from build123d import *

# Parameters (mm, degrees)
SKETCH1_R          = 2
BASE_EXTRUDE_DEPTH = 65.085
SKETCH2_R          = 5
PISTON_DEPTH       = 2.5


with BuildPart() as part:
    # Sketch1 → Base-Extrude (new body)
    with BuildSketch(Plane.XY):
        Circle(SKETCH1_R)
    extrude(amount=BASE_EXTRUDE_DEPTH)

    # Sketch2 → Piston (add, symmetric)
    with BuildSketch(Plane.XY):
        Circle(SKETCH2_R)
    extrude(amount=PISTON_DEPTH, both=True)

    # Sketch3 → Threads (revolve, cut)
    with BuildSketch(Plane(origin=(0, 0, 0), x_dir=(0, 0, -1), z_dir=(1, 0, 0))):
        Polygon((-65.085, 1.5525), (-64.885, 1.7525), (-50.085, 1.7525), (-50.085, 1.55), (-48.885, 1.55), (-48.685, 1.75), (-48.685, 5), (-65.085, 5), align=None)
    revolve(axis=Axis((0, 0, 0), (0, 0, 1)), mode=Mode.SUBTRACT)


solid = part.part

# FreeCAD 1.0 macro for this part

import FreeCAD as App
import Part
import Sketcher
Q = App.Units.Quantity

doc = App.newDocument("Part")
body = doc.addObject("PartDesign::Body", "Body")

sketch1 = body.newObject("Sketcher::SketchObject", "Sketch")
sketch1.AttachmentSupport = (doc.getObject("XY_Plane"), [""])
sketch1.MapMode = "FlatFace"
sketch1.addGeometry(Part.Circle(App.Vector(0, 0, 0), App.Vector(0, 0, 1), 2), False)
sketch1.addConstraint(Sketcher.Constraint("Coincident", 0, 3, -1, 1))
sketch1.addConstraint(Sketcher.Constraint("Diameter", 0, 4.0))
pad1 = body.newObject("PartDesign::Pad", "Pad")
pad1.Profile = sketch1
pad1.Length = 65.085

sketch2 = body.newObject("Sketcher::SketchObject", "Sketch001")
sketch2.AttachmentSupport = (doc.getObject("XY_Plane"), [""])
sketch2.MapMode = "FlatFace"
sketch2.addGeometry(Part.Circle(App.Vector(0, 0, 0), App.Vector(0, 0, 1), 5), False)
sketch2.addConstraint(Sketcher.Constraint("Coincident", 0, 3, -1, 1))
sketch2.addConstraint(Sketcher.Constraint("Diameter", 0, 10.0))
pad2 = body.newObject("PartDesign::Pad", "Pad001")
pad2.Profile = sketch2
pad2.Length = 5
pad2.Midplane = True

sketch3 = body.newObject("Sketcher::SketchObject", "Sketch002")
sketch3.AttachmentSupport = (doc.getObject("YZ_Plane"), [""])
sketch3.MapMode = "FlatFace"
sketch3.addGeometry(Part.LineSegment(App.Vector(1.55, 65.08, 0), App.Vector(1.75, 64.89, 0)), False)
sketch3.addGeometry(Part.LineSegment(App.Vector(1.75, 64.89, 0), App.Vector(1.75, 50.09, 0)), False)
sketch3.addGeometry(Part.LineSegment(App.Vector(1.75, 50.09, 0), App.Vector(1.55, 50.09, 0)), False)
sketch3.addGeometry(Part.LineSegment(App.Vector(1.55, 50.09, 0), App.Vector(1.55, 48.88, 0)), False)
sketch3.addGeometry(Part.LineSegment(App.Vector(1.55, 48.88, 0), App.Vector(1.75, 48.69, 0)), False)
sketch3.addGeometry(Part.LineSegment(App.Vector(1.75, 48.69, 0), App.Vector(5, 48.69, 0)), False)
sketch3.addGeometry(Part.LineSegment(App.Vector(5, 48.69, 0), App.Vector(5, 65.08, 0)), False)
sketch3.addGeometry(Part.LineSegment(App.Vector(5, 65.08, 0), App.Vector(1.55, 65.08, 0)), False)
sketch3.addConstraint(Sketcher.Constraint("Coincident", 0, 2, 1, 1))
sketch3.addConstraint(Sketcher.Constraint("Coincident", 1, 2, 2, 1))
sketch3.addConstraint(Sketcher.Constraint("Coincident", 2, 2, 3, 1))
sketch3.addConstraint(Sketcher.Constraint("Coincident", 3, 2, 4, 1))
sketch3.addConstraint(Sketcher.Constraint("Coincident", 4, 2, 5, 1))
sketch3.addConstraint(Sketcher.Constraint("Coincident", 5, 2, 6, 1))
sketch3.addConstraint(Sketcher.Constraint("Coincident", 6, 2, 7, 1))
sketch3.addConstraint(Sketcher.Constraint("Coincident", 7, 2, 0, 1))
sketch3.addConstraint(Sketcher.Constraint("Vertical", 1))
sketch3.addConstraint(Sketcher.Constraint("Horizontal", 2))
sketch3.addConstraint(Sketcher.Constraint("Vertical", 3))
sketch3.addConstraint(Sketcher.Constraint("Horizontal", 5))
sketch3.addConstraint(Sketcher.Constraint("Vertical", 6))
sketch3.addConstraint(Sketcher.Constraint("Horizontal", 7))
sketch3.addConstraint(Sketcher.Constraint("Parallel", 0, 4))
sketch3.addConstraint(Sketcher.Constraint("Equal", 0, 4))
sketch3.addConstraint(Sketcher.Constraint("Angle", 0, Q("-45 deg")))
sketch3.addConstraint(Sketcher.Constraint("DistanceY", 1, 2, 1, 1, 14.8))
sketch3.addConstraint(Sketcher.Constraint("DistanceY", 3, 2, 3, 1, 1.2))
sketch3.addConstraint(Sketcher.Constraint("DistanceY", 6, 1, 6, 2, 16.4))
sketch3.addConstraint(Sketcher.Constraint("DistanceX", -1, 1, 5, 2, 5.0))
sketch3.addConstraint(Sketcher.Constraint("DistanceX", 5, 1, 5, 2, 3.25))
sketch3.addConstraint(Sketcher.Constraint("DistanceX", 2, 2, 2, 1, 0.2025))
sketch3.addConstraint(Sketcher.Constraint("DistanceY", -1, 1, 0, 2, 64.885))
groove = body.newObject("PartDesign::Groove", "Groove")
groove.Profile = sketch3
groove.ReferenceAxis = (sketch3, ["V_Axis"])
groove.Angle = 360

doc.recompute()
